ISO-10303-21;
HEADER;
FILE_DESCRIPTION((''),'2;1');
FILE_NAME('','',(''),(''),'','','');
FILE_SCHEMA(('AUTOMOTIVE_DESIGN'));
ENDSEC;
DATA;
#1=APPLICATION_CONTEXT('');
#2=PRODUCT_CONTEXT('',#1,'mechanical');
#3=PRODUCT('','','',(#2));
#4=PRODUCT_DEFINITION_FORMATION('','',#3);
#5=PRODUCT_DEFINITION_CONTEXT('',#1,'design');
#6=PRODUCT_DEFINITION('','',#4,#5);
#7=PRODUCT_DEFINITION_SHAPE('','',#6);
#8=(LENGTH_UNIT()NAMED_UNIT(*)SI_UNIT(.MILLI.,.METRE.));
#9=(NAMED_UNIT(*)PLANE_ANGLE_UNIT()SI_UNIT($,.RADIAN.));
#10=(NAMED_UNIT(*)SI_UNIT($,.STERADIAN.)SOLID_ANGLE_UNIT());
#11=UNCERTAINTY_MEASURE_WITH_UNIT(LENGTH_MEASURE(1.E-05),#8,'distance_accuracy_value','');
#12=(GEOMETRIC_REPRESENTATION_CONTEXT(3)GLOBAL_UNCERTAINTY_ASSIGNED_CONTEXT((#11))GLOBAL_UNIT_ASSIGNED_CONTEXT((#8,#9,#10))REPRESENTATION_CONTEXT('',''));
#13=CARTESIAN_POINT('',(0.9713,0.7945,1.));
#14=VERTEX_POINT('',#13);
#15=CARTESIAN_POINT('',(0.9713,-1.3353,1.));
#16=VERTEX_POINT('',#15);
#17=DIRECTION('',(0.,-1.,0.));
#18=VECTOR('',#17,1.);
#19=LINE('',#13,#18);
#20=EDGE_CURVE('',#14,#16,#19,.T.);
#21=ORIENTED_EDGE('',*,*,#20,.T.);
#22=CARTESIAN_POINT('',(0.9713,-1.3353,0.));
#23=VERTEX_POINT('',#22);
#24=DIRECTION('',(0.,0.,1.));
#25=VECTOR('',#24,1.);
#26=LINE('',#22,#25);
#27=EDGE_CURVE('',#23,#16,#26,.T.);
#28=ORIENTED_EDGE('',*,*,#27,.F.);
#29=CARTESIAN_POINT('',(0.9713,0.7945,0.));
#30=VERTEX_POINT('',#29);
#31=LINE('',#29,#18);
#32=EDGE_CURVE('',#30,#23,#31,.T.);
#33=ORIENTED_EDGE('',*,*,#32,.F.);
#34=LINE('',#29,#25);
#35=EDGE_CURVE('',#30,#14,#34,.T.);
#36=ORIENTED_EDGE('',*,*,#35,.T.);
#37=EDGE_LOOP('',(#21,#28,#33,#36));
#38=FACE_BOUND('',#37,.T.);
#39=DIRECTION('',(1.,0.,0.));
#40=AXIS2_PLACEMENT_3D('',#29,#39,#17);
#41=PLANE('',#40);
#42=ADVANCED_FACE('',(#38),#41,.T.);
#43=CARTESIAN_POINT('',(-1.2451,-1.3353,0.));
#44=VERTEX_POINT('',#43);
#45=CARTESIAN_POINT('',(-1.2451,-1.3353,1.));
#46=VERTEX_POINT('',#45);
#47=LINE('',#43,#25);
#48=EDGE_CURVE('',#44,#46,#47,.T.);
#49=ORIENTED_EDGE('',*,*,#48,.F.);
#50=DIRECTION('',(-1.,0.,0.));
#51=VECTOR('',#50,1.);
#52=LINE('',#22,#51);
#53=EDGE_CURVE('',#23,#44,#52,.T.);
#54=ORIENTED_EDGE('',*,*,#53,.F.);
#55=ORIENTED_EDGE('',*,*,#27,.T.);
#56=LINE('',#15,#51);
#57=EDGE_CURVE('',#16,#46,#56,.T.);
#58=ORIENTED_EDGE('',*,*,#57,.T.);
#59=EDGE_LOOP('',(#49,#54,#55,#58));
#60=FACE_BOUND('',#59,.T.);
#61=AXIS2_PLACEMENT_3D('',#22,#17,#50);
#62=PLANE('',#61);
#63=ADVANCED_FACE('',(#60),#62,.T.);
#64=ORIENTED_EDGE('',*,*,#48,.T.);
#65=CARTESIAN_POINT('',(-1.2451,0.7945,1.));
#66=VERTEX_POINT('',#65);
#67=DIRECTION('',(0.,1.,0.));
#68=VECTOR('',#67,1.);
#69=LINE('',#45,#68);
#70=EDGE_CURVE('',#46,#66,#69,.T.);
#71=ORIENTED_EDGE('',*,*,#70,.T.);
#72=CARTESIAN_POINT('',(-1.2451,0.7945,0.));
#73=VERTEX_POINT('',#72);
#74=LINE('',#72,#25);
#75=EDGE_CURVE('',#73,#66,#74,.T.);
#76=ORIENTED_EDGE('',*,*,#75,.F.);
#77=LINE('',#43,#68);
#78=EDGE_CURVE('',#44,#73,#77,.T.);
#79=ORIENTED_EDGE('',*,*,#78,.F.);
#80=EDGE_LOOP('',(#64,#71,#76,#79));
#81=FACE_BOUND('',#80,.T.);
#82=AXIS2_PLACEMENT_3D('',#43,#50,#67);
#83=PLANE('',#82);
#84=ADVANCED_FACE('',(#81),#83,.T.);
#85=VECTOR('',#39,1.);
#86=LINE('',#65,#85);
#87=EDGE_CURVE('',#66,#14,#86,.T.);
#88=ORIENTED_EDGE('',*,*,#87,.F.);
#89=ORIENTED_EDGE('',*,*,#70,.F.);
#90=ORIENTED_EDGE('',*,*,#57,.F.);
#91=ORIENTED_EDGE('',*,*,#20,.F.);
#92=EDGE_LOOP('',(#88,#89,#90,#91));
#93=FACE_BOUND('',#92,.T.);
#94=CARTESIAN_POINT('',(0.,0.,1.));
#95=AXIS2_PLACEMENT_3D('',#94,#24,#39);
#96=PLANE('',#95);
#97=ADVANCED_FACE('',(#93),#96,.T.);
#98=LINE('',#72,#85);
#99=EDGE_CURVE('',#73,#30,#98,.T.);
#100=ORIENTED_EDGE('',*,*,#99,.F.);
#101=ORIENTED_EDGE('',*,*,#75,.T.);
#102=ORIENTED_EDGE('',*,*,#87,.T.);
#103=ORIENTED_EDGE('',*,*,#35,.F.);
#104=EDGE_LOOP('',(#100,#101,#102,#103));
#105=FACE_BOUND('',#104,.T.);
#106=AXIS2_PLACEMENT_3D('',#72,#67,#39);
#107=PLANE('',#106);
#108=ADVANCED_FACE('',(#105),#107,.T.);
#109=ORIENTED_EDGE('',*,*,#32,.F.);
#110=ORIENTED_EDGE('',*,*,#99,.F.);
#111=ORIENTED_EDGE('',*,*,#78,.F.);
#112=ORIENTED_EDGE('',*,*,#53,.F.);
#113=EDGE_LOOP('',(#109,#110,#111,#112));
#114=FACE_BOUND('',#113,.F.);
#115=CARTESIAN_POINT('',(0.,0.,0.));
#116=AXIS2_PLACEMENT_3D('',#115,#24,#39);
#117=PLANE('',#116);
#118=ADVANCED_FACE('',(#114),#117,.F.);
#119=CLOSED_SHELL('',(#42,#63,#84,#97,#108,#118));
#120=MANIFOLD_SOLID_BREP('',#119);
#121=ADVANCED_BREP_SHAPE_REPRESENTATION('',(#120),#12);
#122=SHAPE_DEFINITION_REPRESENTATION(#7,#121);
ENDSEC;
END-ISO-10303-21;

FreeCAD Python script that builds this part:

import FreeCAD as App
import Part
import Sketcher

V = App.Vector

doc = App.newDocument("Part")
body = doc.addObject("PartDesign::Body", "Body")

# Sketch on XY plane
sketch1 = body.newObject("Sketcher::SketchObject", "Sketch")
sketch1.AttachmentSupport = (doc.getObject("XY_Plane"), [""])
sketch1.MapMode = "FlatFace"
sketch1.addGeometry([
    Part.LineSegment(V(1, 0.8, 0), V(-1.2, 0.8, 0)),
    Part.LineSegment(V(-1.2, 0.8, 0), V(-1.2, -1.3, 0)),
    Part.LineSegment(V(-1.2, -1.3, 0), V(1, -1.3, 0)),
    Part.LineSegment(V(1, -1.3, 0), V(1, 0.8, 0)),
], False)
sketch1.addConstraint([
    Sketcher.Constraint("Coincident", 0, 2, 1, 1),
    Sketcher.Constraint("Coincident", 1, 2, 2, 1),
    Sketcher.Constraint("Coincident", 2, 2, 3, 1),
    Sketcher.Constraint("Coincident", 3, 2, 0, 1),
    Sketcher.Constraint("Horizontal", 0),
    Sketcher.Constraint("Vertical", 1),
    Sketcher.Constraint("Horizontal", 2),
    Sketcher.Constraint("Vertical", 3),
    Sketcher.Constraint("DistanceX", 0, 2, 0, 1, 2.2164),
    Sketcher.Constraint("DistanceY", 1, 2, 1, 1, 2.1298),
    Sketcher.Constraint("DistanceX", 0, 2, -1, 1, 1.245),
    Sketcher.Constraint("DistanceY", -1, 1, 0, 2, 0.7945),
])
pad1 = body.newObject("PartDesign::Pad", "Pad")
pad1.Profile = sketch1
pad1.Length = 1

doc.recompute()
